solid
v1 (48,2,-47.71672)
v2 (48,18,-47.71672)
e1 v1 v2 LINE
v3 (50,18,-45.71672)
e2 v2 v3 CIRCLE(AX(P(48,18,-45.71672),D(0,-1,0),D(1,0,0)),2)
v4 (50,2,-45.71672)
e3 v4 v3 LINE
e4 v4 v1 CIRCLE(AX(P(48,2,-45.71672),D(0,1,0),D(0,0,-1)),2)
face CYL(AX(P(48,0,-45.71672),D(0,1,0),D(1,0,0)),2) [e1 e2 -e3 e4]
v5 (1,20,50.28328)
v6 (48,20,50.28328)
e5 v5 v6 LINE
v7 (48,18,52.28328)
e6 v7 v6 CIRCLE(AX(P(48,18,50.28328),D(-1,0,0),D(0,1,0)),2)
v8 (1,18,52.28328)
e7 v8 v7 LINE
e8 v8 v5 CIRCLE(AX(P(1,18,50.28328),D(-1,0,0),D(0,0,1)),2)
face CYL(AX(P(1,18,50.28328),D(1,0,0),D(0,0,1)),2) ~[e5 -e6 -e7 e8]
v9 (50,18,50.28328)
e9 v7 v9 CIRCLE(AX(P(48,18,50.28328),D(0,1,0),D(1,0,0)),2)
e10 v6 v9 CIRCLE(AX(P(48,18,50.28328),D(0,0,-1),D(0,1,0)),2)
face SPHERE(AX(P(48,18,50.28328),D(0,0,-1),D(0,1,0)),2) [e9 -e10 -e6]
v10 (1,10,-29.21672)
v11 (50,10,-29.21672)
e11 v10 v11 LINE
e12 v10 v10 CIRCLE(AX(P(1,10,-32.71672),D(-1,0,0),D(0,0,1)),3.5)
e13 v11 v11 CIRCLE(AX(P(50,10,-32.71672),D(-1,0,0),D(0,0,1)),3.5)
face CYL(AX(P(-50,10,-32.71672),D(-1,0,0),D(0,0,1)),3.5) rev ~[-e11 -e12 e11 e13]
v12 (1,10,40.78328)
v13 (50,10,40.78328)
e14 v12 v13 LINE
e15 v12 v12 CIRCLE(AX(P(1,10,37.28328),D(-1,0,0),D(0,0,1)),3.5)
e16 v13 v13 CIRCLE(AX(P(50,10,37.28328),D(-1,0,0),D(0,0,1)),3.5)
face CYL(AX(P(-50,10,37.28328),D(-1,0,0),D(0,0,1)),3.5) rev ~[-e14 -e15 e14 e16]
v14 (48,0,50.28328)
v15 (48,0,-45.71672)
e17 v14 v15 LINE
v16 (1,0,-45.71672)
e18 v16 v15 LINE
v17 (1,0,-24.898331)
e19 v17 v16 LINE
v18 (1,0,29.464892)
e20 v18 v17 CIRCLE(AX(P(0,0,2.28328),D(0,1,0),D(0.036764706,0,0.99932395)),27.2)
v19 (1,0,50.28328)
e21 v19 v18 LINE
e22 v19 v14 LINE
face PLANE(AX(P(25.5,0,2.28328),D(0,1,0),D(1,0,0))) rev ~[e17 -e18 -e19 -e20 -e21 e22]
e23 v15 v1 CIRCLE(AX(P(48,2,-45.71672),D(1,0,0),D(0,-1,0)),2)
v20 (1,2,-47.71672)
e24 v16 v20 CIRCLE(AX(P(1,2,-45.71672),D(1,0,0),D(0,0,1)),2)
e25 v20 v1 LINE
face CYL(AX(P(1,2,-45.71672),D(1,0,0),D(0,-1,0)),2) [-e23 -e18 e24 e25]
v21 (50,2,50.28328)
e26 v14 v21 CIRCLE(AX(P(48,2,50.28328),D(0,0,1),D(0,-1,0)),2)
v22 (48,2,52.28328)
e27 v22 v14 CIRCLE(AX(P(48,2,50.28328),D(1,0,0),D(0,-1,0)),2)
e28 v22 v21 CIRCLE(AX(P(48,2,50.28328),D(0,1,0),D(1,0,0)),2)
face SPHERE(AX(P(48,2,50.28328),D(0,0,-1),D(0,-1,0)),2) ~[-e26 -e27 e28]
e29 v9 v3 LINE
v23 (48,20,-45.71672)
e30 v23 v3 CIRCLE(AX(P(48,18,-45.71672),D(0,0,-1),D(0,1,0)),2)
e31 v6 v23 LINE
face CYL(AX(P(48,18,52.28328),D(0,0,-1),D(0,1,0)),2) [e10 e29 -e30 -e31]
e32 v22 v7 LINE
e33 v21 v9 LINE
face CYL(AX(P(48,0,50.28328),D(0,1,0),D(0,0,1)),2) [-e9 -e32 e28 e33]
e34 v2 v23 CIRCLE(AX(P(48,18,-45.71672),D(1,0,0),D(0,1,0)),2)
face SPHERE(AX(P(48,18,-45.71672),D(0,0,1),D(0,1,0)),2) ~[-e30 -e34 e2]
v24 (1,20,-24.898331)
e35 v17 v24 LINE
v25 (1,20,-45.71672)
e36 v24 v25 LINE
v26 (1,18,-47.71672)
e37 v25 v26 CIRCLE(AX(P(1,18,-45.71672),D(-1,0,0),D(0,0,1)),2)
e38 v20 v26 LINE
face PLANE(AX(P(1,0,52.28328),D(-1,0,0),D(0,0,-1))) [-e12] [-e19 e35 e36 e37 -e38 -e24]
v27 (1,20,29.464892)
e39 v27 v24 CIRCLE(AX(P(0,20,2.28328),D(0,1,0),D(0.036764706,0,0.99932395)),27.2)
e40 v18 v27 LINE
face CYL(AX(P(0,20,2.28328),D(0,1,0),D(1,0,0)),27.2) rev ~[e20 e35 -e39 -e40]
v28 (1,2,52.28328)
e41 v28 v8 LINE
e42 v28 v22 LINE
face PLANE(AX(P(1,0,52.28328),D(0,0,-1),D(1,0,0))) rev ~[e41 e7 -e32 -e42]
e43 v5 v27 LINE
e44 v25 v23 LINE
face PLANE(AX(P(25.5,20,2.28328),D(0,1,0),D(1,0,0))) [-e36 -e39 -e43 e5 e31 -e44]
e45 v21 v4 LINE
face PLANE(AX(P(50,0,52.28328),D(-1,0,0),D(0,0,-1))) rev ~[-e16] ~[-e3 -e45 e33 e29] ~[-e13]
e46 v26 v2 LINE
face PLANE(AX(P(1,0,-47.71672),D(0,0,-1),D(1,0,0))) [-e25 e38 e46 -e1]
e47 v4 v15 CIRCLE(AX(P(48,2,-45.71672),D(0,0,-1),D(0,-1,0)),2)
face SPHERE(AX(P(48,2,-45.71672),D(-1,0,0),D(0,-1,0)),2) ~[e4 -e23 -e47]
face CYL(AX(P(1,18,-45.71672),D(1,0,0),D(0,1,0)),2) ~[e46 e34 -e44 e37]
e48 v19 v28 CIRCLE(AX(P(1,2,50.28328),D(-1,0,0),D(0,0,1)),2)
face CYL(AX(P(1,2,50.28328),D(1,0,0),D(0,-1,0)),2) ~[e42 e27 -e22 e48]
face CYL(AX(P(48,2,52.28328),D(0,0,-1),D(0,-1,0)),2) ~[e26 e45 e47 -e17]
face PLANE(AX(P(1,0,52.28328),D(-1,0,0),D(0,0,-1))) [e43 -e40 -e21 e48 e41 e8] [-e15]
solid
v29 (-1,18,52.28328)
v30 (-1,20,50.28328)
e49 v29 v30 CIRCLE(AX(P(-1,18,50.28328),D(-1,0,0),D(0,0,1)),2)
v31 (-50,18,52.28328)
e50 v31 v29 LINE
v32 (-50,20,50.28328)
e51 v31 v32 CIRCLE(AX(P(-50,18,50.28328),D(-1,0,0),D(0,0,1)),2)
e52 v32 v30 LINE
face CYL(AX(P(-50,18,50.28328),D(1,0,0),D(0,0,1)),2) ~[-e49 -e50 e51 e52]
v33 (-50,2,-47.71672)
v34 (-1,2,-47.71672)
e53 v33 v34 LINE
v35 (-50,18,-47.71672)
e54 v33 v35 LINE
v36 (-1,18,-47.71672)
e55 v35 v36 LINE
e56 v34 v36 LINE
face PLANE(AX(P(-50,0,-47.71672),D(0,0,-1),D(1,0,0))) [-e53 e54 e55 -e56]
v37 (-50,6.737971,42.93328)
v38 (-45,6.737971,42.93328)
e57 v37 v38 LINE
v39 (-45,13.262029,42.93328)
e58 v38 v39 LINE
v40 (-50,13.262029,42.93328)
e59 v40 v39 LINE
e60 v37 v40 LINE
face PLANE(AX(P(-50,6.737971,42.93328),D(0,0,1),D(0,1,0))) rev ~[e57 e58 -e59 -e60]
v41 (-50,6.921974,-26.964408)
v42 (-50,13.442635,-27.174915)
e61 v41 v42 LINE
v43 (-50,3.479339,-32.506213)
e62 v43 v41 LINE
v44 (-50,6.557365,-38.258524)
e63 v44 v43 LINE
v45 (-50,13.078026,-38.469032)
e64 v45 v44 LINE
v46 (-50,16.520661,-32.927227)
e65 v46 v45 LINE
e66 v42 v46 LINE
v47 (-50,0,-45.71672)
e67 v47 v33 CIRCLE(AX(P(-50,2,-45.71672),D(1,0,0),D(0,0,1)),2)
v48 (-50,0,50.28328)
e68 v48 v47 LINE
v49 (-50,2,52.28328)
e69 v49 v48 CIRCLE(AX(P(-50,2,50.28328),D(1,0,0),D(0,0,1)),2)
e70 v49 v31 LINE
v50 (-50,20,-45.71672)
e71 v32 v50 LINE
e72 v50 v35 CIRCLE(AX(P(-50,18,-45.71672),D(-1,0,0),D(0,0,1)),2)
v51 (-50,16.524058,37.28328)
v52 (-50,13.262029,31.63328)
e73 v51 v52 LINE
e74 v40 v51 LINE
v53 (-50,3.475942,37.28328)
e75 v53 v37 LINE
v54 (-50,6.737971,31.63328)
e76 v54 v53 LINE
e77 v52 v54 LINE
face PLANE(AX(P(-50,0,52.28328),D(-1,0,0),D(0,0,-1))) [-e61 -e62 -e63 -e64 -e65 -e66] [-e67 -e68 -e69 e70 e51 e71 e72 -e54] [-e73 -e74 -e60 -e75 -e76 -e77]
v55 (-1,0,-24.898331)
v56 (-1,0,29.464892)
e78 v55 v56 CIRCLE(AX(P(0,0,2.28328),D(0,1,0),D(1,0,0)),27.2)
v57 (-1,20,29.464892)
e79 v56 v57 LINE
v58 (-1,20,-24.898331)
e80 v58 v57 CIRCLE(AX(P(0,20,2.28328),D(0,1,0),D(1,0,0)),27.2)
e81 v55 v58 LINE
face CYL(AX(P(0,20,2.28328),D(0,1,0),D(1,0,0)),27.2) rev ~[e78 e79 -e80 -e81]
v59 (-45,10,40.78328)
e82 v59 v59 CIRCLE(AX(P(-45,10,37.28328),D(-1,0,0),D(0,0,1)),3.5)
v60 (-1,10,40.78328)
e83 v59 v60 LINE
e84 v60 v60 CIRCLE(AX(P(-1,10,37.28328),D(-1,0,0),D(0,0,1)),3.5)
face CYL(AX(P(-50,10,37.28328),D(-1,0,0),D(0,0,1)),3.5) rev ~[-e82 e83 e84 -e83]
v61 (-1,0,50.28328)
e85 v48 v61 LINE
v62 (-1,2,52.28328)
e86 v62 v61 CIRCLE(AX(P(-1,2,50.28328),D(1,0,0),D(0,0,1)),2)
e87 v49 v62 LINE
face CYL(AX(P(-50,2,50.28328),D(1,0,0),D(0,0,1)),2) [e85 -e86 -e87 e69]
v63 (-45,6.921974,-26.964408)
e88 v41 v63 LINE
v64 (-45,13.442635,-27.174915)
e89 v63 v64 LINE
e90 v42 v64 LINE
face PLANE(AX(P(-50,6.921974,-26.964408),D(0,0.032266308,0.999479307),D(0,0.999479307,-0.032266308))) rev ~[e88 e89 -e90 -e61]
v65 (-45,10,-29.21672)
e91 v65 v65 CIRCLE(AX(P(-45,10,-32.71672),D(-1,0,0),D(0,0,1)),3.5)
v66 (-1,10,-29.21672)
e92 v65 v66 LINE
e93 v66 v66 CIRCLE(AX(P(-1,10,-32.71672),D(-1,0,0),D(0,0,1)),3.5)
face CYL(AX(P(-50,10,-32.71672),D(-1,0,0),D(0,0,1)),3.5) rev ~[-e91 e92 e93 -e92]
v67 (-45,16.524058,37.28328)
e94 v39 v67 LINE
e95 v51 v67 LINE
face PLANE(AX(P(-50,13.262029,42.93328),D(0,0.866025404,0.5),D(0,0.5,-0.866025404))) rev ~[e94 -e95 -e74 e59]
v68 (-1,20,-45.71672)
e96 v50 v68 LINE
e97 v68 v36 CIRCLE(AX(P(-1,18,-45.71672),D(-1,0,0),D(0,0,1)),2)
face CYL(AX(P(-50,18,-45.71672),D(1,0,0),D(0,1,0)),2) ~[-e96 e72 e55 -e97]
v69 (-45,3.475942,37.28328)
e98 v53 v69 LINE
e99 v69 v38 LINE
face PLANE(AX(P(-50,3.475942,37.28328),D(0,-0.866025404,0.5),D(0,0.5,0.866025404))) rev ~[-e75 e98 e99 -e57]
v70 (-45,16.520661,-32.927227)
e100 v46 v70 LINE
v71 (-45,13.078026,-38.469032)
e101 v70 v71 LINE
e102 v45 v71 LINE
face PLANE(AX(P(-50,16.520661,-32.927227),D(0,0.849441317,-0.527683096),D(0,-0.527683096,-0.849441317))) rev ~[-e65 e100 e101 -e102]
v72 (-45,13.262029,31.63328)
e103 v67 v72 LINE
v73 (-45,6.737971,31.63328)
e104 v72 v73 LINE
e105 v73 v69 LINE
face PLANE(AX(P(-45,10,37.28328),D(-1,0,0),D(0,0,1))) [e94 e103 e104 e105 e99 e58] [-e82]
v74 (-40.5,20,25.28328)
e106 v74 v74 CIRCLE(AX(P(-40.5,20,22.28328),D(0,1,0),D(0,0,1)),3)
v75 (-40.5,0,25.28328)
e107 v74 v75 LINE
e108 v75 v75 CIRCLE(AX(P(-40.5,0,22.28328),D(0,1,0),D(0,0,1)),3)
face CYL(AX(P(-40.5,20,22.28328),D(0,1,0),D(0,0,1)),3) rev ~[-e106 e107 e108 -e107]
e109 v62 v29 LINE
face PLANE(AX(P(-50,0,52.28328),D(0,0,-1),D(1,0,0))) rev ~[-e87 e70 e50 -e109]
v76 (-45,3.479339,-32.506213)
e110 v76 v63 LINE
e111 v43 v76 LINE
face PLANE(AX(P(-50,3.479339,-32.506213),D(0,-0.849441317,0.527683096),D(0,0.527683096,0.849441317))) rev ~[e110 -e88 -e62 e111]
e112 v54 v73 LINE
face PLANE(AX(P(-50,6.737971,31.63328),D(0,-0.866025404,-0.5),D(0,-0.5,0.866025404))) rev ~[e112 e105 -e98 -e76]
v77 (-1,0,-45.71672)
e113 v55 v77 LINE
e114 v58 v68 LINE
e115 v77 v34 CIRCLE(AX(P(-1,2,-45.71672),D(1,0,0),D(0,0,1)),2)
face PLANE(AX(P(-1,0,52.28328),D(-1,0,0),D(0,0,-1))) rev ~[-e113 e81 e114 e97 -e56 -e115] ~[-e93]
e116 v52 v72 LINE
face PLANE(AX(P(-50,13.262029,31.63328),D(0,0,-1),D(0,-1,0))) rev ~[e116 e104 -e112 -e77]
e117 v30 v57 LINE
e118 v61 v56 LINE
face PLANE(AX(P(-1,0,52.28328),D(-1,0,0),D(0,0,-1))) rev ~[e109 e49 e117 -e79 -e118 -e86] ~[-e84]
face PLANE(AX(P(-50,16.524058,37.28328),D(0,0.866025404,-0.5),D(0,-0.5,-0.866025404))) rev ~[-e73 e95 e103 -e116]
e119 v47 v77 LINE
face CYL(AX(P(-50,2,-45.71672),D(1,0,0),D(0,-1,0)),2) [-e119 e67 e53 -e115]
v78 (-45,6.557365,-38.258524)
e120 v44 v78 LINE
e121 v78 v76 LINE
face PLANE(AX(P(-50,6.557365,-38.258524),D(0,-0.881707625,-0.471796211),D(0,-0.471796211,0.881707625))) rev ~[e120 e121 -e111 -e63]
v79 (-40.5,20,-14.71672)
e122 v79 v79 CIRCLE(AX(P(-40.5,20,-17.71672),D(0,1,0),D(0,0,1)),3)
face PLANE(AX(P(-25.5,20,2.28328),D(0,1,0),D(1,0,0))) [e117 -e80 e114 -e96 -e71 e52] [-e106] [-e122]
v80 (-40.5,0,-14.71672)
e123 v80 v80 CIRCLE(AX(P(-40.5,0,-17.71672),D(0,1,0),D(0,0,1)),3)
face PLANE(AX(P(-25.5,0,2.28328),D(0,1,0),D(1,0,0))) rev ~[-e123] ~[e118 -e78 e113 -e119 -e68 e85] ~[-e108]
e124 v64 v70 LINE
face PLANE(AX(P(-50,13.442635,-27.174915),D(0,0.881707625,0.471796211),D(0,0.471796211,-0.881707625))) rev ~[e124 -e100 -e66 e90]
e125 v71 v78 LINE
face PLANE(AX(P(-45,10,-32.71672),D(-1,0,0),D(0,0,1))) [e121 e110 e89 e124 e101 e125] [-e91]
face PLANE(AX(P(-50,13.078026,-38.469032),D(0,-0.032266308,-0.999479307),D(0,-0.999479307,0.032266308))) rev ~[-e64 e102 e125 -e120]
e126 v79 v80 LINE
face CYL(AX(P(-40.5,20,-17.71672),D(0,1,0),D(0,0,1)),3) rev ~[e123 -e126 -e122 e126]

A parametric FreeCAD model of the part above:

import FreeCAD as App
import Part
import Sketcher
from FreeCAD import Vector
Q = App.Units.Quantity


def edges_at(feature, points):
    """Names of the edges that pass closest to the given points."""
    edges = feature.Shape.Edges
    near = lambda p: min(range(len(edges)), key=lambda i: edges[i].distToShape(Part.Vertex(*p))[0])
    return sorted({f"Edge{near(p) + 1}" for p in points})


def add_polygon(sketch, points):
    """Adds a closed chain of lines whose ends are joined by coincident constraints."""
    first, n = sketch.GeometryCount, len(points)
    for a, b in zip(points, points[1:] + points[:1]):
        sketch.addGeometry(Part.LineSegment(App.Vector(*a, 0), App.Vector(*b, 0)), False)
    for i in range(n):
        sketch.addConstraint(Sketcher.Constraint("Coincident", first + i, 2, first + (i + 1) % n, 1))

doc = App.newDocument("Part")
body = doc.addObject("PartDesign::Body", "Body")

# Sketch on XZ plane
sketch1 = body.newObject("Sketcher::SketchObject", "Sketch")
sketch1.AttachmentSupport = (doc.getObject("XZ_Plane"), [""])
sketch1.MapMode = "FlatFace"
add_polygon(sketch1, [(1, -48), (1, 52), (50, 52), (50, -48)])  # lines 0-3
sketch1.addConstraint([
    Sketcher.Constraint("Vertical", 0),
    Sketcher.Constraint("Horizontal", 1),
    Sketcher.Constraint("Vertical", 2),
    Sketcher.Constraint("Horizontal", 3),
    Sketcher.Constraint("DistanceX", 1, 1, 1, 2, 49.0),
    Sketcher.Constraint("DistanceY", 0, 1, 0, 2, 100.0),
    Sketcher.Constraint("DistanceX", -1, 1, 0, 2, 1.0),
    Sketcher.Constraint("DistanceY", -1, 1, 0, 2, 52.28328),
])
pad1 = body.newObject("PartDesign::Pad", "Pad")
pad1.Profile = sketch1
pad1.Length = 20
pad1.Reversed = True
body2 = doc.addObject("PartDesign::Body", "Body001")

# Sketch on XZ plane
sketch2 = body2.newObject("Sketcher::SketchObject", "Sketch001")
sketch2.AttachmentSupport = (doc.getObject("XZ_Plane001"), [""])
sketch2.MapMode = "FlatFace"
add_polygon(sketch2, [(-50, -48), (-50, 52), (-1, 52), (-1, -48)])  # lines 0-3
sketch2.addConstraint([
    Sketcher.Constraint("Vertical", 0),
    Sketcher.Constraint("Horizontal", 1),
    Sketcher.Constraint("Vertical", 2),
    Sketcher.Constraint("Horizontal", 3),
    Sketcher.Constraint("DistanceX", 1, 1, 1, 2, 49.0),
    Sketcher.Constraint("DistanceY", 0, 1, 0, 2, 100.0),
    Sketcher.Constraint("DistanceX", 0, 2, -1, 1, 50.0),
    Sketcher.Constraint("DistanceY", -1, 1, 0, 2, 52.28328),
])
pad2 = body2.newObject("PartDesign::Pad", "Pad001")
pad2.Profile = sketch2
pad2.Length = 20
pad2.Reversed = True
body3 = doc.addObject("PartDesign::Body", "Body002")

# Sketch on XZ plane
sketch3 = body3.newObject("Sketcher::SketchObject", "Sketch002")
sketch3.AttachmentSupport = (doc.getObject("XZ_Plane002"), [""])
sketch3.MapMode = "FlatFace"
sketch3.AttachmentOffset = App.Placement(Vector(0, 0, -20), App.Rotation())
sketch3.addGeometry(Part.Circle(Vector(0, 2, 0), Vector(0, 0, 1), 27), False)
sketch3.addConstraint([
    Sketcher.Constraint("PointOnObject", 0, 3, -2),
    Sketcher.Constraint("Diameter", 0, 54.4),
    Sketcher.Constraint("DistanceY", -1, 1, 0, 3, 2.28328),
])
pad3 = body3.newObject("PartDesign::Pad", "Pad002")
pad3.Profile = sketch3
pad3.Length = 76.056921
doc.recompute()

body4 = doc.addObject("PartDesign::Body", "Body003")
body4.BaseFeature = body3
boolean = body.newObject("PartDesign::Boolean", "Boolean")
boolean.Type = "Cut"
boolean.addObjects([body4])
doc.recompute()

boolean2 = body2.newObject("PartDesign::Boolean", "Boolean001")
boolean2.Type = "Cut"
boolean2.addObjects([body3])
body5 = doc.addObject("PartDesign::Body", "Body004")
body5.AllowCompound = True

# Sketch on YZ plane
sketch4 = body5.newObject("Sketcher::SketchObject", "Sketch003")
sketch4.AttachmentSupport = (doc.getObject("YZ_Plane004"), [""])
sketch4.MapMode = "FlatFace"
sketch4.AttachmentOffset = App.Placement(Vector(0, 0, -50), App.Rotation())
sketch4.addGeometry([
    Part.Circle(Vector(10, -32.7, 0), Vector(0, 0, 1), 3.5),
    Part.Circle(Vector(10, 37.3, 0), Vector(0, 0, 1), 3.5),
], False)
sketch4.addConstraint([
    Sketcher.Constraint("Equal", 0, 1),
    Sketcher.Constraint("Vertical", 0, 3, 1, 3),
    Sketcher.Constraint("Diameter", 0, 7.0),
    Sketcher.Constraint("DistanceX", -1, 1, 0, 3, 10.0),
    Sketcher.Constraint("DistanceY", 0, 3, 1, 3, 70.0),
    Sketcher.Constraint("DistanceY", 0, 3, -1, 1, 32.71672),
])
pad4 = body5.newObject("PartDesign::Pad", "Pad003")
pad4.Profile = sketch4
pad4.Length = 115.601664
doc.recompute()

body6 = doc.addObject("PartDesign::Body", "Body005")
body6.BaseFeature = body5
boolean3 = body.newObject("PartDesign::Boolean", "Boolean002")
boolean3.Type = "Cut"
boolean3.addObjects([body6])
doc.recompute()

fillet = body.newObject("PartDesign::Fillet", "Fillet")
fillet.Base = (boolean3, edges_at(boolean3, [
    (50, 20, 2.283),
    (25.5, 20, -47.717),
    (25.5, 0, -47.717),
    (50, 0, 2.283),
    (25.5, 0, 52.283),
    (25.5, 20, 52.283),
    (50, 10, -47.717),
    (50, 10, 52.283),
]))
fillet.Radius = 2
doc.recompute()

boolean4 = body2.newObject("PartDesign::Boolean", "Boolean003")
boolean4.Type = "Cut"
boolean4.addObjects([body5])

# Sketch on XZ plane
sketch5 = body2.newObject("Sketcher::SketchObject", "Sketch004")
sketch5.AttachmentSupport = (doc.getObject("XZ_Plane001"), [""])
sketch5.MapMode = "FlatFace"
sketch5.AttachmentOffset = App.Placement(Vector(0, 0, -20), App.Rotation())
sketch5.addGeometry([
    Part.Circle(Vector(-40.5, -17.7, 0), Vector(0, 0, 1), 3),
    Part.Circle(Vector(-40.5, 22.3, 0), Vector(0, 0, 1), 3),
], False)
sketch5.addConstraint([
    Sketcher.Constraint("Equal", 0, 1),
    Sketcher.Constraint("Vertical", 0, 3, 1, 3),
    Sketcher.Constraint("Diameter", 0, 6.0),
    Sketcher.Constraint("DistanceY", 0, 3, 1, 3, 40.0),
    Sketcher.Constraint("DistanceX", 0, 3, -1, 1, 40.5),
    Sketcher.Constraint("DistanceY", 0, 3, -1, 1, 17.71672),
])
pocket1 = body2.newObject("PartDesign::Pocket", "Pocket")
pocket1.Profile = sketch5
pocket1.Type = "ThroughAll"
pocket1.Reversed = True

# Sketch on YZ plane
sketch6 = body2.newObject("Sketcher::SketchObject", "Sketch005")
sketch6.AttachmentSupport = (doc.getObject("YZ_Plane001"), [""])
sketch6.MapMode = "FlatFace"
sketch6.AttachmentOffset = App.Placement(Vector(0, 0, -50), App.Rotation())
add_polygon(sketch6, [(7, -27), (13, -27), (17, -33), (13, -38), (7, -38), (3, -33)])  # lines 0-5
add_polygon(sketch6, [(3, 37), (7, 43), (13, 43), (17, 37), (13, 32), (7, 32)])  # lines 6-11
sketch6.addConstraint([
    Sketcher.Constraint("Horizontal", 7),
    Sketcher.Constraint("Horizontal", 10),
    Sketcher.Constraint("Parallel", 0, 3),
    Sketcher.Constraint("Parallel", 1, 4),
    Sketcher.Constraint("Parallel", 2, 5),
    Sketcher.Constraint("Parallel", 6, 9),
    Sketcher.Constraint("Parallel", 8, 11),
    Sketcher.Constraint("Horizontal", 8, 2, 11, 2),
    Sketcher.Constraint("Vertical", 7, 2, 9, 2),
    Sketcher.Constraint("Vertical", 6, 2, 10, 2),
    Sketcher.Constraint("Equal", 0, 1),
    Sketcher.Constraint("Equal", 1, 2),
    Sketcher.Constraint("Equal", 2, 3),
    Sketcher.Constraint("Equal", 5, 6),
    Sketcher.Constraint("Angle", 6, Q("60 deg")),
    Sketcher.Constraint("DistanceY", 9, 2, 7, 2, 11.3),
    Sketcher.Constraint("DistanceX", 7, 1, 7, 2, 6.524058),
    Sketcher.Constraint("DistanceX", -1, 1, 1, 2, 16.520661),
    Sketcher.Constraint("DistanceY", 2, 2, -1, 1, 38.469032),
    Sketcher.Constraint("DistanceX", -1, 1, 4, 2, 3.479339),
    Sketcher.Constraint("DistanceY", 5, 2, -1, 1, 26.964408),
    Sketcher.Constraint("DistanceX", -1, 1, 6, 2, 6.737971),
    Sketcher.Constraint("DistanceY", -1, 1, 6, 2, 42.93328),
    Sketcher.Constraint("DistanceY", 1, 2, 0, 2, 5.752312),
])
pocket2 = body2.newObject("PartDesign::Pocket", "Pocket001")
pocket2.Profile = sketch6
pocket2.Length = 5
pocket2.Reversed = True
doc.recompute()

fillet2 = body2.newObject("PartDesign::Fillet", "Fillet001")
fillet2.Base = (pocket2, edges_at(pocket2, [
    (-25.5, 20, 52.283),
    (-25.5, 20, -47.717),
    (-25.5, 0, 52.283),
    (-25.5, 0, -47.717),
]))
fillet2.Radius = 2

doc.recompute()
